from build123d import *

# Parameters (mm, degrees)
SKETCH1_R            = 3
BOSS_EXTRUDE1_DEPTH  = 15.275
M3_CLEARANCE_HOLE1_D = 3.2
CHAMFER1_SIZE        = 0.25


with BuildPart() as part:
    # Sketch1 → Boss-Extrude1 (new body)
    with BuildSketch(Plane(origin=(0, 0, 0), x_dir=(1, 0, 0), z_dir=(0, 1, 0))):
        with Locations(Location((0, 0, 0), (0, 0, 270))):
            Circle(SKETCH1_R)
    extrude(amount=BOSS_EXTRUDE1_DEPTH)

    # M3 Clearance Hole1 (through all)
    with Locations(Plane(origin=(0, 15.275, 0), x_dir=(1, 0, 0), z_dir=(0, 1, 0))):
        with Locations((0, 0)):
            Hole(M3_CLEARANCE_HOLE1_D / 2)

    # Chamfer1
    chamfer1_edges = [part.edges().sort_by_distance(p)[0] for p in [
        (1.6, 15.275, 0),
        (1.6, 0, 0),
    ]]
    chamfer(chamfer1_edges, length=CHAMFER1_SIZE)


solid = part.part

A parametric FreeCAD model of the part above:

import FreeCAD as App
import Part
import Sketcher
from FreeCAD import Vector
Q = App.Units.Quantity


def edges_at(feature, points):
    """Names of the edges that pass closest to the given points."""
    edges = feature.Shape.Edges
    near = lambda p: min(range(len(edges)), key=lambda i: edges[i].distToShape(Part.Vertex(*p))[0])
    return sorted({f"Edge{near(p) + 1}" for p in points})

doc = App.newDocument("Part")
body = doc.addObject("PartDesign::Body", "Body")

# Sketch on XZ plane
sketch1 = body.newObject("Sketcher::SketchObject", "Sketch")
sketch1.AttachmentSupport = (doc.getObject("XZ_Plane"), [""])
sketch1.MapMode = "FlatFace"
sketch1.addGeometry(Part.Circle(Vector(0, 0, 0), Vector(0, 0, 1), 3), False)
sketch1.addConstraint([
    Sketcher.Constraint("Coincident", 0, 3, -1, 1),
    Sketcher.Constraint("Diameter", 0, Q("6 mm")),
])
pad1 = body.newObject("PartDesign::Pad", "Pad")
pad1.Profile = sketch1
pad1.Length = 15.275
pad1.Reversed = True

# Sketch on XZ plane
sketch2 = body.newObject("Sketcher::SketchObject", "Sketch001")
sketch2.AttachmentSupport = (doc.getObject("XZ_Plane"), [""])
sketch2.MapMode = "FlatFace"
sketch2.AttachmentOffset = App.Placement(Vector(0, 0, -15.275), App.Rotation())
sketch2.addGeometry(Part.Circle(Vector(0, 0, 0), Vector(0, 0, 1), 1.6), False)
sketch2.addConstraint([
    Sketcher.Constraint("Coincident", 0, 3, -1, 1),
    Sketcher.Constraint("Diameter", 0, Q("3.2 mm")),
])
doc.recompute()
hole = body.newObject("PartDesign::Hole", "Hole")
hole.Profile = sketch2
hole.ThreadType = "None"
hole.Diameter = 3.2
hole.DepthType = "ThroughAll"
hole.Reversed = True
doc.recompute()

chamfer = body.newObject("PartDesign::Chamfer", "Chamfer")
chamfer.Base = (hole, edges_at(hole, [(1.6, 15.275, 0), (1.6, 0, 0)]))
chamfer.Size = 0.25

doc.recompute()
